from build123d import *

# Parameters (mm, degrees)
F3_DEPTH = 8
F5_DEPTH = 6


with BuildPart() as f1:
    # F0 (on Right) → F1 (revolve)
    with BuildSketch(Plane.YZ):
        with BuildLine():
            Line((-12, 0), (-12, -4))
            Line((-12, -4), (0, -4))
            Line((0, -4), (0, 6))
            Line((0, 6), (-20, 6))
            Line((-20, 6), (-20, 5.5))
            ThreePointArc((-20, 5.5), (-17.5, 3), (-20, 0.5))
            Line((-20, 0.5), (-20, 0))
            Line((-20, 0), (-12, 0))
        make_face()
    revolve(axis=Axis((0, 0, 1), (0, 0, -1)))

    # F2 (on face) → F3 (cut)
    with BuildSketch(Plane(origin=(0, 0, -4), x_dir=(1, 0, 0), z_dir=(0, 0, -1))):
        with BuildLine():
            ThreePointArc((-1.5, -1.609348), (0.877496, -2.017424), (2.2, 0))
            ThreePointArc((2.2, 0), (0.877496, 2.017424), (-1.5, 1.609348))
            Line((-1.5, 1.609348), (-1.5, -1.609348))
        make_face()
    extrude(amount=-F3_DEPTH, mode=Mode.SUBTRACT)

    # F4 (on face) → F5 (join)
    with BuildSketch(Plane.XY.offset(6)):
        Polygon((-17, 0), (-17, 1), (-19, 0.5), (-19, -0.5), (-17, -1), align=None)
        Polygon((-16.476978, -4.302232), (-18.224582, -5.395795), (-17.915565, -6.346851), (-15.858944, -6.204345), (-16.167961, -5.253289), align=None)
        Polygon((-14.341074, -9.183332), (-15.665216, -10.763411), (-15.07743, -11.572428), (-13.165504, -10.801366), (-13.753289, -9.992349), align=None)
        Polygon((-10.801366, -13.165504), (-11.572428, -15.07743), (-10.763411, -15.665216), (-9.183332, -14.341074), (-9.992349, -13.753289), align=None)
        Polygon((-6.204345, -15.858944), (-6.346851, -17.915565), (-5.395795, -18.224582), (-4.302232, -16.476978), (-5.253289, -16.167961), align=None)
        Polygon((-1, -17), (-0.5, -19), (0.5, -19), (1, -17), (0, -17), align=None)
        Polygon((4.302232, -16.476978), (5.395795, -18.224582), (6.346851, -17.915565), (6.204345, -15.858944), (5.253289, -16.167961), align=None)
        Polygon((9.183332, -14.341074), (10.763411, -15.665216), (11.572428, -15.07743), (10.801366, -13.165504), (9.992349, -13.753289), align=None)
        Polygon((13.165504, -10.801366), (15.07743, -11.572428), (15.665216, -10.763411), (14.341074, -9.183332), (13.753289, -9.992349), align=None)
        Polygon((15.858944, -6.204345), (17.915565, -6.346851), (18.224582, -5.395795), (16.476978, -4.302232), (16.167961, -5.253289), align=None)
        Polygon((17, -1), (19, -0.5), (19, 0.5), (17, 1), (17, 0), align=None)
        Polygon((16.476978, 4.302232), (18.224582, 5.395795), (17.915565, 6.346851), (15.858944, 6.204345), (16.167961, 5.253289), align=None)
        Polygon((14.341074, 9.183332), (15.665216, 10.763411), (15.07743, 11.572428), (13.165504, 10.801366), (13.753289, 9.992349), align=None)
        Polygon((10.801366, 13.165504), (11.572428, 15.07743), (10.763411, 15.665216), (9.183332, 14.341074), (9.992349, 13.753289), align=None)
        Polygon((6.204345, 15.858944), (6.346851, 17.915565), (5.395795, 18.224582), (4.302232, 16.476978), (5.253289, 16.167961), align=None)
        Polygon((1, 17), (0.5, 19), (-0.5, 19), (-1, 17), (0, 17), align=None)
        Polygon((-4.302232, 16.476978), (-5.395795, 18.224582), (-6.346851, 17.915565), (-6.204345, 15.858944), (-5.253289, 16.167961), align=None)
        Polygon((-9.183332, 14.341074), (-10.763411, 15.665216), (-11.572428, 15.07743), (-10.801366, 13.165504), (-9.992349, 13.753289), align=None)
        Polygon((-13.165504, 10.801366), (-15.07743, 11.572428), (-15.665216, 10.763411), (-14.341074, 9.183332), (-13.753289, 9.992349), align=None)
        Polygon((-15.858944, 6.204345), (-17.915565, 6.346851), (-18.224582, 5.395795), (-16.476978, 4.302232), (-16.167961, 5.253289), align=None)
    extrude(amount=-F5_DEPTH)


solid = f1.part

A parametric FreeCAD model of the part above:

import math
import FreeCAD as App
import Part
import Sketcher
from FreeCAD import Vector
Q = App.Units.Quantity


def add_polygon(sketch, points):
    """Adds a closed chain of lines whose ends are joined by coincident constraints."""
    first, n = sketch.GeometryCount, len(points)
    for a, b in zip(points, points[1:] + points[:1]):
        sketch.addGeometry(Part.LineSegment(App.Vector(*a, 0), App.Vector(*b, 0)), False)
    for i in range(n):
        sketch.addConstraint(Sketcher.Constraint("Coincident", first + i, 2, first + (i + 1) % n, 1))

doc = App.newDocument("Part")
body = doc.addObject("PartDesign::Body", "Body")

# Sketch on YZ plane
sketch1 = body.newObject("Sketcher::SketchObject", "Sketch")
sketch1.AttachmentSupport = (doc.getObject("YZ_Plane"), [""])
sketch1.MapMode = "FlatFace"
sketch1.addGeometry(Part.LineSegment(Vector(-12, 0, 0), Vector(-12, -4, 0)), False)
sketch1.addGeometry(Part.LineSegment(Vector(-12, -4, 0), Vector(0, -4, 0)), False)
sketch1.addGeometry(Part.LineSegment(Vector(0, -4, 0), Vector(0, 6, 0)), False)
sketch1.addGeometry(Part.LineSegment(Vector(0, 6, 0), Vector(-20, 6, 0)), False)
sketch1.addGeometry(Part.LineSegment(Vector(-20, 6, 0), Vector(-20, 5.5, 0)), False)
sketch1.addGeometry(Part.ArcOfCircle(Part.Circle(Vector(-20, 3, 0), Vector(0, 0, 1), 2.5), math.radians(-90), math.radians(90)), False)
sketch1.addGeometry(Part.LineSegment(Vector(-20, 0.5, 0), Vector(-20, 0, 0)), False)
sketch1.addGeometry(Part.LineSegment(Vector(-20, 0, 0), Vector(-12, 0, 0)), False)
sketch1.addConstraint(Sketcher.Constraint("Coincident", 0, 2, 1, 1))
sketch1.addConstraint(Sketcher.Constraint("Coincident", 1, 2, 2, 1))
sketch1.addConstraint(Sketcher.Constraint("Coincident", 2, 2, 3, 1))
sketch1.addConstraint(Sketcher.Constraint("Coincident", 3, 2, 4, 1))
sketch1.addConstraint(Sketcher.Constraint("Coincident", 4, 2, 5, 2))
sketch1.addConstraint(Sketcher.Constraint("Coincident", 5, 1, 6, 1))
sketch1.addConstraint(Sketcher.Constraint("Coincident", 6, 2, 7, 1))
sketch1.addConstraint(Sketcher.Constraint("Coincident", 7, 2, 0, 1))
sketch1.addConstraint(Sketcher.Constraint("Vertical", 0))
sketch1.addConstraint(Sketcher.Constraint("Horizontal", 1))
sketch1.addConstraint(Sketcher.Constraint("Vertical", 2))
sketch1.addConstraint(Sketcher.Constraint("Horizontal", 3))
sketch1.addConstraint(Sketcher.Constraint("Vertical", 4))
sketch1.addConstraint(Sketcher.Constraint("Vertical", 6))
sketch1.addConstraint(Sketcher.Constraint("Horizontal", 7))
sketch1.addConstraint(Sketcher.Constraint("PointOnObject", 1, 2, -2))
sketch1.addConstraint(Sketcher.Constraint("PointOnObject", 6, 2, -1))
sketch1.addConstraint(Sketcher.Constraint("Vertical", 5, 3, 3, 2))
sketch1.addConstraint(Sketcher.Constraint("Vertical", 4, 2, 5, 1))
sketch1.addConstraint(Sketcher.Constraint("Equal", 4, 6))
sketch1.addConstraint(Sketcher.Constraint("Radius", 5, Q("2.5 mm")))
sketch1.addConstraint(Sketcher.Constraint("DistanceX", 1, 1, 1, 2, Q("12 mm")))
sketch1.addConstraint(Sketcher.Constraint("DistanceX", 3, 2, 3, 1, Q("20 mm")))
sketch1.addConstraint(Sketcher.Constraint("DistanceY", 0, 2, 0, 1, Q("4 mm")))
sketch1.addConstraint(Sketcher.Constraint("DistanceY", 2, 1, 2, 2, Q("10 mm")))
revolution = body.newObject("PartDesign::Revolution", "Revolution")
revolution.Profile = sketch1
revolution.ReferenceAxis = (sketch1, ["V_Axis"])
revolution.Angle = 360

# Sketch on XY plane
sketch2 = body.newObject("Sketcher::SketchObject", "Sketch001")
sketch2.AttachmentSupport = (doc.getObject("XY_Plane"), [""])
sketch2.MapMode = "FlatFace"
sketch2.AttachmentOffset = App.Placement(Vector(0, 0, -4), App.Rotation())
sketch2.addGeometry(Part.ArcOfCircle(Part.Circle(Vector(0, 0, 0), Vector(0, 0, 1), 2.2), math.radians(0), math.radians(133)), False)
sketch2.addGeometry(Part.ArcOfCircle(Part.Circle(Vector(0, 0, 0), Vector(0, 0, 1), 2.2), math.radians(-133), math.radians(0)), False)
sketch2.addGeometry(Part.LineSegment(Vector(-1.5, -1.6, 0), Vector(-1.5, 1.6, 0)), False)
sketch2.addConstraint(Sketcher.Constraint("Tangent", 0, 1, 1, 2))
sketch2.addConstraint(Sketcher.Constraint("Coincident", 1, 1, 2, 1))
sketch2.addConstraint(Sketcher.Constraint("Coincident", 2, 2, 0, 2))
sketch2.addConstraint(Sketcher.Constraint("Vertical", 2))
sketch2.addConstraint(Sketcher.Constraint("Coincident", 0, 3, -1, 1))
sketch2.addConstraint(Sketcher.Constraint("Equal", 0, 1))
sketch2.addConstraint(Sketcher.Constraint("PointOnObject", 0, 1, -1))
sketch2.addConstraint(Sketcher.Constraint("Radius", 0, Q("2.2 mm")))
sketch2.addConstraint(Sketcher.Constraint("DistanceX", 1, 1, -1, 1, Q("1.5 mm")))
pocket1 = body.newObject("PartDesign::Pocket", "Pocket")
pocket1.Profile = sketch2
pocket1.Length = 8
pocket1.Reversed = True

# Sketch on XY plane
sketch3 = body.newObject("Sketcher::SketchObject", "Sketch002")
sketch3.AttachmentSupport = (doc.getObject("XY_Plane"), [""])
sketch3.MapMode = "FlatFace"
sketch3.AttachmentOffset = App.Placement(Vector(0, 0, 6), App.Rotation())
add_polygon(sketch3, [(-17, 1), (-19, 0.5), (-19, -0.5), (-17, -1)])  # lines 0-3
add_polygon(sketch3, [(-16.5, -4.3), (-18.2, -5.4), (-17.9, -6.3), (-15.9, -6.2), (-16.2, -5.3)])  # lines 4-8
add_polygon(sketch3, [(-14.3, -9.2), (-15.7, -10.8), (-15.1, -11.6), (-13.2, -10.8)])  # lines 9-12
add_polygon(sketch3, [(-10.8, -13.2), (-11.6, -15.1), (-10.8, -15.7), (-9.2, -14.3)])  # lines 13-16
add_polygon(sketch3, [(-6.2, -15.9), (-6.3, -17.9), (-5.4, -18.2), (-4.3, -16.5), (-5.3, -16.2)])  # lines 17-21
add_polygon(sketch3, [(-1, -17), (-0.5, -19), (0.5, -19), (1, -17)])  # lines 22-25
add_polygon(sketch3, [(4.3, -16.5), (5.4, -18.2), (6.3, -17.9), (6.2, -15.9), (5.3, -16.2)])  # lines 26-30
add_polygon(sketch3, [(9.2, -14.3), (10.8, -15.7), (11.6, -15.1), (10.8, -13.2)])  # lines 31-34
add_polygon(sketch3, [(13.2, -10.8), (15.1, -11.6), (15.7, -10.8), (14.3, -9.2)])  # lines 35-38
add_polygon(sketch3, [(15.9, -6.2), (17.9, -6.3), (18.2, -5.4), (16.5, -4.3), (16.2, -5.3)])  # lines 39-43
add_polygon(sketch3, [(17, -1), (19, -0.5), (19, 0.5), (17, 1)])  # lines 44-47
add_polygon(sketch3, [(16.5, 4.3), (18.2, 5.4), (17.9, 6.3), (15.9, 6.2), (16.2, 5.3)])  # lines 48-52
add_polygon(sketch3, [(14.3, 9.2), (15.7, 10.8), (15.1, 11.6), (13.2, 10.8)])  # lines 53-56
add_polygon(sketch3, [(10.8, 13.2), (11.6, 15.1), (10.8, 15.7), (9.2, 14.3)])  # lines 57-60
add_polygon(sketch3, [(6.2, 15.9), (6.3, 17.9), (5.4, 18.2), (4.3, 16.5), (5.3, 16.2)])  # lines 61-65
add_polygon(sketch3, [(1, 17), (0.5, 19), (-0.5, 19), (-1, 17)])  # lines 66-69
add_polygon(sketch3, [(-4.3, 16.5), (-5.4, 18.2), (-6.3, 17.9), (-6.2, 15.9), (-5.3, 16.2)])  # lines 70-74
add_polygon(sketch3, [(-9.2, 14.3), (-10.8, 15.7), (-11.6, 15.1), (-10.8, 13.2)])  # lines 75-78
add_polygon(sketch3, [(-13.2, 10.8), (-15.1, 11.6), (-15.7, 10.8), (-14.3, 9.2)])  # lines 79-82
add_polygon(sketch3, [(-15.9, 6.2), (-17.9, 6.3), (-18.2, 5.4), (-16.5, 4.3), (-16.2, 5.3)])  # lines 83-87
sketch3.addConstraint(Sketcher.Constraint("Vertical", 1))
sketch3.addConstraint(Sketcher.Constraint("Vertical", 3))
sketch3.addConstraint(Sketcher.Constraint("Horizontal", 23))
sketch3.addConstraint(Sketcher.Constraint("Horizontal", 25))
sketch3.addConstraint(Sketcher.Constraint("Vertical", 45))
sketch3.addConstraint(Sketcher.Constraint("Vertical", 47))
sketch3.addConstraint(Sketcher.Constraint("Horizontal", 67))
sketch3.addConstraint(Sketcher.Constraint("Horizontal", 69))
sketch3.addConstraint(Sketcher.Constraint("Symmetric", 0, 2, 44, 2, -1, 1))
sketch3.addConstraint(Sketcher.Constraint("Symmetric", 2, 2, 46, 2, -1, 1))
sketch3.addConstraint(Sketcher.Constraint("Symmetric", 4, 2, 48, 2, -1, 1))
sketch3.addConstraint(Sketcher.Constraint("Symmetric", 5, 2, 49, 2, -1, 1))
sketch3.addConstraint(Sketcher.Constraint("Symmetric", 6, 2, 50, 2, -1, 1))
sketch3.addConstraint(Sketcher.Constraint("Symmetric", 7, 2, 51, 2, -1, 1))
sketch3.addConstraint(Sketcher.Constraint("Symmetric", 8, 2, 52, 2, -1, 1))
sketch3.addConstraint(Sketcher.Constraint("Symmetric", 9, 2, 53, 2, -1, 1))
sketch3.addConstraint(Sketcher.Constraint("Symmetric", 10, 2, 54, 2, -1, 1))
sketch3.addConstraint(Sketcher.Constraint("Symmetric", 11, 2, 55, 2, -1, 1))
sketch3.addConstraint(Sketcher.Constraint("Symmetric", 12, 2, 56, 2, -1, 1))
sketch3.addConstraint(Sketcher.Constraint("Symmetric", 13, 2, 57, 2, -1, 1))
sketch3.addConstraint(Sketcher.Constraint("Symmetric", 14, 2, 58, 2, -1, 1))
sketch3.addConstraint(Sketcher.Constraint("Symmetric", 15, 2, 59, 2, -1, 1))
sketch3.addConstraint(Sketcher.Constraint("Symmetric", 16, 2, 60, 2, -1, 1))
sketch3.addConstraint(Sketcher.Constraint("Symmetric", 17, 2, 61, 2, -1, 1))
sketch3.addConstraint(Sketcher.Constraint("Symmetric", 18, 2, 62, 2, -1, 1))
sketch3.addConstraint(Sketcher.Constraint("Symmetric", 19, 2, 63, 2, -1, 1))
sketch3.addConstraint(Sketcher.Constraint("Symmetric", 20, 2, 64, 2, -1, 1))
sketch3.addConstraint(Sketcher.Constraint("Symmetric", 21, 2, 65, 2, -1, 1))
sketch3.addConstraint(Sketcher.Constraint("Symmetric", 22, 2, 66, 2, -1, 1))
sketch3.addConstraint(Sketcher.Constraint("Symmetric", 24, 2, 68, 2, -1, 1))
sketch3.addConstraint(Sketcher.Constraint("Symmetric", 26, 2, 70, 2, -1, 1))
sketch3.addConstraint(Sketcher.Constraint("Symmetric", 27, 2, 71, 2, -1, 1))
sketch3.addConstraint(Sketcher.Constraint("Symmetric", 28, 2, 72, 2, -1, 1))
sketch3.addConstraint(Sketcher.Constraint("Symmetric", 29, 2, 73, 2, -1, 1))
sketch3.addConstraint(Sketcher.Constraint("Symmetric", 30, 2, 74, 2, -1, 1))
sketch3.addConstraint(Sketcher.Constraint("Symmetric", 31, 2, 75, 2, -1, 1))
sketch3.addConstraint(Sketcher.Constraint("Symmetric", 32, 2, 76, 2, -1, 1))
sketch3.addConstraint(Sketcher.Constraint("Symmetric", 33, 2, 77, 2, -1, 1))
sketch3.addConstraint(Sketcher.Constraint("Symmetric", 34, 2, 78, 2, -1, 1))
sketch3.addConstraint(Sketcher.Constraint("Symmetric", 35, 2, 79, 2, -1, 1))
sketch3.addConstraint(Sketcher.Constraint("Symmetric", 36, 2, 80, 2, -1, 1))
sketch3.addConstraint(Sketcher.Constraint("Symmetric", 37, 2, 81, 2, -1, 1))
sketch3.addConstraint(Sketcher.Constraint("Symmetric", 38, 2, 82, 2, -1, 1))
sketch3.addConstraint(Sketcher.Constraint("Symmetric", 39, 2, 83, 2, -1, 1))
sketch3.addConstraint(Sketcher.Constraint("Symmetric", 40, 2, 84, 2, -1, 1))
sketch3.addConstraint(Sketcher.Constraint("Symmetric", 41, 2, 85, 2, -1, 1))
sketch3.addConstraint(Sketcher.Constraint("Symmetric", 42, 2, 86, 2, -1, 1))
sketch3.addConstraint(Sketcher.Constraint("Symmetric", 43, 2, 87, 2, -1, 1))
sketch3.addConstraint(Sketcher.Constraint("Symmetric", 18, 2, 26, 2, -2))
sketch3.addConstraint(Sketcher.Constraint("Symmetric", 17, 2, 27, 2, -2))
sketch3.addConstraint(Sketcher.Constraint("Symmetric", 21, 2, 28, 2, -2))
sketch3.addConstraint(Sketcher.Constraint("Symmetric", 20, 2, 29, 2, -2))
sketch3.addConstraint(Sketcher.Constraint("Symmetric", 19, 2, 30, 2, -2))
sketch3.addConstraint(Sketcher.Constraint("Symmetric", 14, 2, 31, 2, -2))
sketch3.addConstraint(Sketcher.Constraint("Symmetric", 13, 2, 32, 2, -2))
sketch3.addConstraint(Sketcher.Constraint("Symmetric", 16, 2, 33, 2, -2))
sketch3.addConstraint(Sketcher.Constraint("Symmetric", 15, 2, 34, 2, -2))
sketch3.addConstraint(Sketcher.Constraint("Symmetric", 10, 2, 35, 2, -2))
sketch3.addConstraint(Sketcher.Constraint("Symmetric", 9, 2, 36, 2, -2))
sketch3.addConstraint(Sketcher.Constraint("Symmetric", 12, 2, 37, 2, -2))
sketch3.addConstraint(Sketcher.Constraint("Symmetric", 11, 2, 38, 2, -2))
sketch3.addConstraint(Sketcher.Constraint("Symmetric", 5, 2, 39, 2, -2))
sketch3.addConstraint(Sketcher.Constraint("Symmetric", 4, 2, 40, 2, -2))
sketch3.addConstraint(Sketcher.Constraint("Symmetric", 8, 2, 41, 2, -2))
sketch3.addConstraint(Sketcher.Constraint("Symmetric", 7, 2, 42, 2, -2))
sketch3.addConstraint(Sketcher.Constraint("Symmetric", 6, 2, 43, 2, -2))
sketch3.addConstraint(Sketcher.Constraint("Parallel", 5, 7))
sketch3.addConstraint(Sketcher.Constraint("Parallel", 7, 8))
sketch3.addConstraint(Sketcher.Constraint("Parallel", 10, 12))
sketch3.addConstraint(Sketcher.Constraint("Parallel", 14, 16))
sketch3.addConstraint(Sketcher.Constraint("Parallel", 18, 20))
sketch3.addConstraint(Sketcher.Constraint("Parallel", 20, 21))
sketch3.addConstraint(Sketcher.Constraint("Perpendicular", 0, 22))
sketch3.addConstraint(Sketcher.Constraint("Perpendicular", 2, 24))
sketch3.addConstraint(Sketcher.Constraint("Perpendicular", 4, 26))
sketch3.addConstraint(Sketcher.Constraint("Perpendicular", 8, 27))
sketch3.addConstraint(Sketcher.Constraint("Perpendicular", 6, 28))
sketch3.addConstraint(Sketcher.Constraint("Perpendicular", 9, 31))
sketch3.addConstraint(Sketcher.Constraint("Perpendicular", 12, 32))
sketch3.addConstraint(Sketcher.Constraint("Perpendicular", 11, 33))
sketch3.addConstraint(Sketcher.Constraint("Perpendicular", 22, 44))
sketch3.addConstraint(Sketcher.Constraint("Perpendicular", 24, 46))
sketch3.addConstraint(Sketcher.Constraint("Perpendicular", 44, 66))
sketch3.addConstraint(Sketcher.Constraint("Perpendicular", 46, 68))
sketch3.addConstraint(Sketcher.Constraint("Horizontal", 1, 2, 44, 2))
sketch3.addConstraint(Sketcher.Constraint("Horizontal", 3, 2, 46, 2))
sketch3.addConstraint(Sketcher.Constraint("Vertical", 23, 2, 66, 2))
sketch3.addConstraint(Sketcher.Constraint("Equal", 67, 1))
sketch3.addConstraint(Sketcher.Constraint("Equal", 69, 3))
sketch3.addConstraint(Sketcher.Constraint("Equal", 2, 4))
sketch3.addConstraint(Sketcher.Constraint("Equal", 4, 6))
sketch3.addConstraint(Sketcher.Constraint("Equal", 5, 7))
sketch3.addConstraint(Sketcher.Constraint("Equal", 7, 8))
sketch3.addConstraint(Sketcher.Constraint("Equal", 6, 9))
sketch3.addConstraint(Sketcher.Constraint("Equal", 8, 10))
sketch3.addConstraint(Sketcher.Constraint("Equal", 9, 11))
sketch3.addConstraint(Sketcher.Constraint("Equal", 11, 13))
sketch3.addConstraint(Sketcher.Constraint("Equal", 10, 14))
sketch3.addConstraint(Sketcher.Constraint("Equal", 15, 17))
sketch3.addConstraint(Sketcher.Constraint("Equal", 14, 18))
sketch3.addConstraint(Sketcher.Constraint("Equal", 18, 20))
sketch3.addConstraint(Sketcher.Constraint("DistanceX", 23, 1, 23, 2, Q("1 mm")))
sketch3.addConstraint(Sketcher.Constraint("DistanceX", 25, 2, 25, 1, Q("2 mm")))
sketch3.addConstraint(Sketcher.Constraint("Angle", 5, Q("-71.999991 deg")))
sketch3.addConstraint(Sketcher.Constraint("Angle", 12, Q("125.999988 deg")))
sketch3.addConstraint(Sketcher.Constraint("Distance", 5, Q("1 mm")))
sketch3.addConstraint(Sketcher.Constraint("Distance", 12, Q("2 mm")))
sketch3.addConstraint(Sketcher.Constraint("DistanceX", 0, 2, -1, 1, Q("19 mm")))
sketch3.addConstraint(Sketcher.Constraint("DistanceX", 2, 2, -1, 1, Q("17 mm")))
sketch3.addConstraint(Sketcher.Constraint("DistanceY", 22, 2, -1, 1, Q("19 mm")))
sketch3.addConstraint(Sketcher.Constraint("DistanceY", 5, 2, -1, 1, Q("6.346851 mm")))
sketch3.addConstraint(Sketcher.Constraint("DistanceX", 7, 2, -1, 1, Q("16.167961 mm")))
sketch3.addConstraint(Sketcher.Constraint("DistanceY", 9, 2, -1, 1, Q("10.763411 mm")))
sketch3.addConstraint(Sketcher.Constraint("DistanceX", 10, 2, -1, 1, Q("15.07743 mm")))
sketch3.addConstraint(Sketcher.Constraint("DistanceY", 13, 2, -1, 1, Q("15.07743 mm")))
sketch3.addConstraint(Sketcher.Constraint("DistanceX", 14, 2, -1, 1, Q("10.763411 mm")))
sketch3.addConstraint(Sketcher.Constraint("DistanceX", 17, 2, -1, 1, Q("6.346851 mm")))
sketch3.addConstraint(Sketcher.Constraint("DistanceY", 20, 2, -1, 1, Q("16.167961 mm")))
pad1 = body.newObject("PartDesign::Pad", "Pad")
pad1.Profile = sketch3
pad1.Length = 6
pad1.Reversed = True

doc.recompute()
